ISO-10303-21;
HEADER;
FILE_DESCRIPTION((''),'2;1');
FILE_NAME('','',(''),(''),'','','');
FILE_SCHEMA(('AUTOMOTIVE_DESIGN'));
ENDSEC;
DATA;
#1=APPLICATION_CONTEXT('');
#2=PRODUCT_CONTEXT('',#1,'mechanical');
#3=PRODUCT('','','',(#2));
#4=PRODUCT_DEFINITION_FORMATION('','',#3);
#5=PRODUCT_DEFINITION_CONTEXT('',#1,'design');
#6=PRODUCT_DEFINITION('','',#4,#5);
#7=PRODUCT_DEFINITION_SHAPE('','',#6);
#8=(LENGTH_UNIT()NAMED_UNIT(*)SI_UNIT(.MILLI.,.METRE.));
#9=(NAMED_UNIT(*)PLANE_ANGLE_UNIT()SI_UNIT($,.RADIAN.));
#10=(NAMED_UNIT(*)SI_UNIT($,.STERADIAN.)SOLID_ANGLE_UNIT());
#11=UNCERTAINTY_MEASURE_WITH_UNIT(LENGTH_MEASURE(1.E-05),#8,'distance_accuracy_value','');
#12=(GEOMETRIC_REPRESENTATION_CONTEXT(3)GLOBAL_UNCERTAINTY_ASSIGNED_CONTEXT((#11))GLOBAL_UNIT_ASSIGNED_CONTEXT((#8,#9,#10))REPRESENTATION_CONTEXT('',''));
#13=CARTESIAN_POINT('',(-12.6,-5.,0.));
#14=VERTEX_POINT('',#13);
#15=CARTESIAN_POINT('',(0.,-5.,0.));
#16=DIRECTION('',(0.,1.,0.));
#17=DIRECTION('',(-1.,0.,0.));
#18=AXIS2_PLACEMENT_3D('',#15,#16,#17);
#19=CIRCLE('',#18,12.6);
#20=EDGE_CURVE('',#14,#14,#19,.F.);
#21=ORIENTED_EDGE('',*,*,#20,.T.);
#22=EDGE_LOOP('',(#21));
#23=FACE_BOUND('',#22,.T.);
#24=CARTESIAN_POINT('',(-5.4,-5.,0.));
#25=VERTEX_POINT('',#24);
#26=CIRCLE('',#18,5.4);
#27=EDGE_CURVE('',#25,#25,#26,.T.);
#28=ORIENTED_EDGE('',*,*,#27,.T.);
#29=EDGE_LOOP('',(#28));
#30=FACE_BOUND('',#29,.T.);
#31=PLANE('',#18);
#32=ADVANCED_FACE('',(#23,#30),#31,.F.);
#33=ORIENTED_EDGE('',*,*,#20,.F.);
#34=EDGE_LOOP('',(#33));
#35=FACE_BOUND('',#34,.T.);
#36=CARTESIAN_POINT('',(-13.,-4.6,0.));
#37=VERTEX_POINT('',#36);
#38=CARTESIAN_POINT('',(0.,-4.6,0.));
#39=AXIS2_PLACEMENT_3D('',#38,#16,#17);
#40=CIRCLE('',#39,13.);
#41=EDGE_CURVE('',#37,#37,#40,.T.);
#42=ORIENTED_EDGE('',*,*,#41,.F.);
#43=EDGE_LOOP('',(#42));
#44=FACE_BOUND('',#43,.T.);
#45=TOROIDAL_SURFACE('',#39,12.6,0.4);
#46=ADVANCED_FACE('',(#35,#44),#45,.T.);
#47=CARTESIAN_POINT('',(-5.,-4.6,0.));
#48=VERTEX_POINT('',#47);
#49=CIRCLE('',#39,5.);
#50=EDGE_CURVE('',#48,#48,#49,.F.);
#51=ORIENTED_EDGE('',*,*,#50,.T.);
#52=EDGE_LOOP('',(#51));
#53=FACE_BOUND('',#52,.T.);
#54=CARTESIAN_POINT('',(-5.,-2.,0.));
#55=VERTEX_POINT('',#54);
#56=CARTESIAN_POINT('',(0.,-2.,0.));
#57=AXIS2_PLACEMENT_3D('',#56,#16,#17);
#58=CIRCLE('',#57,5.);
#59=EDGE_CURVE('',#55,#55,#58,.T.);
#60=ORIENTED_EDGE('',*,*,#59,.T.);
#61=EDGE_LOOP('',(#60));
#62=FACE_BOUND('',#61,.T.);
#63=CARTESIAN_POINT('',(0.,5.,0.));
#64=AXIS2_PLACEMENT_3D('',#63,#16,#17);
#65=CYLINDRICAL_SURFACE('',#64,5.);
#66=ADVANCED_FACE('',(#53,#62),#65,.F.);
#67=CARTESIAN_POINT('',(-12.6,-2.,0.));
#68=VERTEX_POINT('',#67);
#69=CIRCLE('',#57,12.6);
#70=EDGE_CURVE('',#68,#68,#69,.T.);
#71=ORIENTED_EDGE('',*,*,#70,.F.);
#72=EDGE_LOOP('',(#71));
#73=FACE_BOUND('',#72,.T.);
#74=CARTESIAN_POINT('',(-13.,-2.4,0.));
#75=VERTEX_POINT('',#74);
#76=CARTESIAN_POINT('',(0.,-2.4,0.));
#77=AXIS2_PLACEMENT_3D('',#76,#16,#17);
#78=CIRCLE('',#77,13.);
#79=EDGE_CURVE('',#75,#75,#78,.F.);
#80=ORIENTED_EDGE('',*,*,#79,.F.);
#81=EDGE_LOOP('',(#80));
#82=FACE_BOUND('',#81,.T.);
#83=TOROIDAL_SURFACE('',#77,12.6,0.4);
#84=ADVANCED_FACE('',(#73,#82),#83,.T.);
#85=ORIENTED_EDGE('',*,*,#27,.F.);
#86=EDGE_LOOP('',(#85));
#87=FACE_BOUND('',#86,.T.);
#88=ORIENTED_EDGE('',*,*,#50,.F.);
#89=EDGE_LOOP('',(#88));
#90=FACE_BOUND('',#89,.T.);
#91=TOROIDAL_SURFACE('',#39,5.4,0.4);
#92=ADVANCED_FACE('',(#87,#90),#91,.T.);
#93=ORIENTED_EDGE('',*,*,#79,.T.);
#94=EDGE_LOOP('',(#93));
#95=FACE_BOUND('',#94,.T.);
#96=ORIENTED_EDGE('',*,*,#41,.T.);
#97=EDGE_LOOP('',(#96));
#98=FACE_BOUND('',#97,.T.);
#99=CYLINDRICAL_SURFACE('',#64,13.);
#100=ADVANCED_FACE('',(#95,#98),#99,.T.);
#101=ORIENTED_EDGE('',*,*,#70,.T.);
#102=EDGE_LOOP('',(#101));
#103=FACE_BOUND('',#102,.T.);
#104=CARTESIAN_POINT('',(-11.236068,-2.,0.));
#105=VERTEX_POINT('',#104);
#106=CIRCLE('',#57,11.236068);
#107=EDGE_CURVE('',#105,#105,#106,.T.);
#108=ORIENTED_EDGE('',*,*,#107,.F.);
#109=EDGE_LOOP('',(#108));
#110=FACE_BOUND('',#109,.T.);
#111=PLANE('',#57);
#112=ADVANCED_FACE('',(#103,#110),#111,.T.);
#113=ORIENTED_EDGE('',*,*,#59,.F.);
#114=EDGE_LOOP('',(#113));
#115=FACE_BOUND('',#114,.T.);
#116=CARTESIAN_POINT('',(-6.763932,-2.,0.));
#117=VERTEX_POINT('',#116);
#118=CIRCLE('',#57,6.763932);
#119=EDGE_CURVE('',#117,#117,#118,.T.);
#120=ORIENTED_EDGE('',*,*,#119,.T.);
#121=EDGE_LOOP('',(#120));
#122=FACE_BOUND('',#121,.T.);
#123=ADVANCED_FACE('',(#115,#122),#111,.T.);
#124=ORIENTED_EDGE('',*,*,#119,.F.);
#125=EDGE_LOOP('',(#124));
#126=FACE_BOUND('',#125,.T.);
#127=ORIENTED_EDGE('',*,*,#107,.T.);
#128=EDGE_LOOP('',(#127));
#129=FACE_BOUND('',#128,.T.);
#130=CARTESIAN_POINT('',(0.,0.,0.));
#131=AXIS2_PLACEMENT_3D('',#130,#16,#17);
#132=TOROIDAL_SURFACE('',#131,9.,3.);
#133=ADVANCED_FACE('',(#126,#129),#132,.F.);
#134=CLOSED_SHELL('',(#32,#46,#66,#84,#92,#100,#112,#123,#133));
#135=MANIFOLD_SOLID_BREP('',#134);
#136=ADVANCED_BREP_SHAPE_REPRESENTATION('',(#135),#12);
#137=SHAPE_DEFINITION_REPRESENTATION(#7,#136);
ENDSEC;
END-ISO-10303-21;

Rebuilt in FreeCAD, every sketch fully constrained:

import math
import FreeCAD as App
import Part
import Sketcher
from FreeCAD import Vector
Q = App.Units.Quantity


def edges_at(feature, points):
    """Names of the edges that pass closest to the given points."""
    edges = feature.Shape.Edges
    near = lambda p: min(range(len(edges)), key=lambda i: edges[i].distToShape(Part.Vertex(*p))[0])
    return sorted({f"Edge{near(p) + 1}" for p in points})

doc = App.newDocument("Part")
params = doc.addObject("Spreadsheet::Sheet", "Params")
for row, (alias, value) in enumerate([
    ("sketch1_radius", "3 mm"),
    ("sketch1_width", "8 mm"),
    ("sketch1_height", "3 mm"),
    ("revolution_angle", "360 deg"),
    ("fillet_radius", "0.4 mm"),
], start=1):
    params.set(f"A{row}", alias)
    params.set(f"B{row}", "=" + value)
    params.setAlias(f"B{row}", alias)

body = doc.addObject("PartDesign::Body", "Body")

sketch1 = doc.addObject("Sketcher::SketchObject", "Sketch")
body.addObject(sketch1)
sketch1.AttachmentSupport = (doc.XY_Plane, [""])
sketch1.MapMode = "FlatFace"
sketch1.addGeometry(Part.LineSegment(Vector(5, -2, 0), Vector(5, -5, 0)), False)
sketch1.addGeometry(Part.LineSegment(Vector(5, -5, 0), Vector(13, -5, 0)), False)
sketch1.addGeometry(Part.LineSegment(Vector(13, -5, 0), Vector(13, -2, 0)), False)
sketch1.addGeometry(Part.LineSegment(Vector(13, -2, 0), Vector(11.236068, -2, 0)), False)
sketch1.addGeometry(Part.ArcOfCircle(Part.Circle(Vector(9, 0, 0), Vector(0, 0, 1), 3), math.radians(-138.189685), math.radians(-41.810315)), False)
sketch1.addGeometry(Part.LineSegment(Vector(6.763932, -2, 0), Vector(5, -2, 0)), False)
sketch1.addConstraint(Sketcher.Constraint("Coincident", 0, 2, 1, 1))
sketch1.addConstraint(Sketcher.Constraint("Coincident", 1, 2, 2, 1))
sketch1.addConstraint(Sketcher.Constraint("Coincident", 2, 2, 3, 1))
sketch1.addConstraint(Sketcher.Constraint("Coincident", 3, 2, 4, 2))
sketch1.addConstraint(Sketcher.Constraint("Coincident", 4, 1, 5, 1))
sketch1.addConstraint(Sketcher.Constraint("Coincident", 5, 2, 0, 1))
sketch1.addConstraint(Sketcher.Constraint("Vertical", 0))
sketch1.addConstraint(Sketcher.Constraint("Horizontal", 1))
sketch1.addConstraint(Sketcher.Constraint("Vertical", 2))
sketch1.addConstraint(Sketcher.Constraint("Horizontal", 3))
sketch1.addConstraint(Sketcher.Constraint("Horizontal", 5))
sketch1.addConstraint(Sketcher.Constraint("PointOnObject", 4, 3, -1))
sketch1.addConstraint(Sketcher.Constraint("Horizontal", 3, 2, 4, 1))
sketch1.addConstraint(Sketcher.Constraint("Equal", 3, 5))
sketch1.addConstraint(Sketcher.Constraint("Radius", 4, Q("3 mm")))
sketch1.addConstraint(Sketcher.Constraint("DistanceX", 1, 1, 1, 2, Q("8 mm")))
sketch1.addConstraint(Sketcher.Constraint("DistanceY", 0, 2, 0, 1, Q("3 mm")))
sketch1.addConstraint(Sketcher.Constraint("DistanceX", -1, 1, 4, 3, Q("9 mm")))
sketch1.addConstraint(Sketcher.Constraint("DistanceY", 0, 2, -1, 1, Q("5 mm")))
sketch1.setExpression("Constraints[14]", "Params.sketch1_radius")
sketch1.setExpression("Constraints[15]", "Params.sketch1_width")
sketch1.setExpression("Constraints[16]", "Params.sketch1_height")
revolution = doc.addObject("PartDesign::Revolution", "Revolution")
body.addObject(revolution)
revolution.Profile = sketch1
revolution.ReferenceAxis = (sketch1, ["V_Axis"])
revolution.setExpression("Angle", "Params.revolution_angle")
doc.recompute()

fillet = doc.addObject("PartDesign::Fillet", "Fillet")
body.addObject(fillet)
fillet.Base = (revolution, edges_at(revolution, [(13, -2, 0), (13, -5, 0), (5, -5, 0)]))
fillet.setExpression("Radius", "Params.fillet_radius")

doc.recompute()
